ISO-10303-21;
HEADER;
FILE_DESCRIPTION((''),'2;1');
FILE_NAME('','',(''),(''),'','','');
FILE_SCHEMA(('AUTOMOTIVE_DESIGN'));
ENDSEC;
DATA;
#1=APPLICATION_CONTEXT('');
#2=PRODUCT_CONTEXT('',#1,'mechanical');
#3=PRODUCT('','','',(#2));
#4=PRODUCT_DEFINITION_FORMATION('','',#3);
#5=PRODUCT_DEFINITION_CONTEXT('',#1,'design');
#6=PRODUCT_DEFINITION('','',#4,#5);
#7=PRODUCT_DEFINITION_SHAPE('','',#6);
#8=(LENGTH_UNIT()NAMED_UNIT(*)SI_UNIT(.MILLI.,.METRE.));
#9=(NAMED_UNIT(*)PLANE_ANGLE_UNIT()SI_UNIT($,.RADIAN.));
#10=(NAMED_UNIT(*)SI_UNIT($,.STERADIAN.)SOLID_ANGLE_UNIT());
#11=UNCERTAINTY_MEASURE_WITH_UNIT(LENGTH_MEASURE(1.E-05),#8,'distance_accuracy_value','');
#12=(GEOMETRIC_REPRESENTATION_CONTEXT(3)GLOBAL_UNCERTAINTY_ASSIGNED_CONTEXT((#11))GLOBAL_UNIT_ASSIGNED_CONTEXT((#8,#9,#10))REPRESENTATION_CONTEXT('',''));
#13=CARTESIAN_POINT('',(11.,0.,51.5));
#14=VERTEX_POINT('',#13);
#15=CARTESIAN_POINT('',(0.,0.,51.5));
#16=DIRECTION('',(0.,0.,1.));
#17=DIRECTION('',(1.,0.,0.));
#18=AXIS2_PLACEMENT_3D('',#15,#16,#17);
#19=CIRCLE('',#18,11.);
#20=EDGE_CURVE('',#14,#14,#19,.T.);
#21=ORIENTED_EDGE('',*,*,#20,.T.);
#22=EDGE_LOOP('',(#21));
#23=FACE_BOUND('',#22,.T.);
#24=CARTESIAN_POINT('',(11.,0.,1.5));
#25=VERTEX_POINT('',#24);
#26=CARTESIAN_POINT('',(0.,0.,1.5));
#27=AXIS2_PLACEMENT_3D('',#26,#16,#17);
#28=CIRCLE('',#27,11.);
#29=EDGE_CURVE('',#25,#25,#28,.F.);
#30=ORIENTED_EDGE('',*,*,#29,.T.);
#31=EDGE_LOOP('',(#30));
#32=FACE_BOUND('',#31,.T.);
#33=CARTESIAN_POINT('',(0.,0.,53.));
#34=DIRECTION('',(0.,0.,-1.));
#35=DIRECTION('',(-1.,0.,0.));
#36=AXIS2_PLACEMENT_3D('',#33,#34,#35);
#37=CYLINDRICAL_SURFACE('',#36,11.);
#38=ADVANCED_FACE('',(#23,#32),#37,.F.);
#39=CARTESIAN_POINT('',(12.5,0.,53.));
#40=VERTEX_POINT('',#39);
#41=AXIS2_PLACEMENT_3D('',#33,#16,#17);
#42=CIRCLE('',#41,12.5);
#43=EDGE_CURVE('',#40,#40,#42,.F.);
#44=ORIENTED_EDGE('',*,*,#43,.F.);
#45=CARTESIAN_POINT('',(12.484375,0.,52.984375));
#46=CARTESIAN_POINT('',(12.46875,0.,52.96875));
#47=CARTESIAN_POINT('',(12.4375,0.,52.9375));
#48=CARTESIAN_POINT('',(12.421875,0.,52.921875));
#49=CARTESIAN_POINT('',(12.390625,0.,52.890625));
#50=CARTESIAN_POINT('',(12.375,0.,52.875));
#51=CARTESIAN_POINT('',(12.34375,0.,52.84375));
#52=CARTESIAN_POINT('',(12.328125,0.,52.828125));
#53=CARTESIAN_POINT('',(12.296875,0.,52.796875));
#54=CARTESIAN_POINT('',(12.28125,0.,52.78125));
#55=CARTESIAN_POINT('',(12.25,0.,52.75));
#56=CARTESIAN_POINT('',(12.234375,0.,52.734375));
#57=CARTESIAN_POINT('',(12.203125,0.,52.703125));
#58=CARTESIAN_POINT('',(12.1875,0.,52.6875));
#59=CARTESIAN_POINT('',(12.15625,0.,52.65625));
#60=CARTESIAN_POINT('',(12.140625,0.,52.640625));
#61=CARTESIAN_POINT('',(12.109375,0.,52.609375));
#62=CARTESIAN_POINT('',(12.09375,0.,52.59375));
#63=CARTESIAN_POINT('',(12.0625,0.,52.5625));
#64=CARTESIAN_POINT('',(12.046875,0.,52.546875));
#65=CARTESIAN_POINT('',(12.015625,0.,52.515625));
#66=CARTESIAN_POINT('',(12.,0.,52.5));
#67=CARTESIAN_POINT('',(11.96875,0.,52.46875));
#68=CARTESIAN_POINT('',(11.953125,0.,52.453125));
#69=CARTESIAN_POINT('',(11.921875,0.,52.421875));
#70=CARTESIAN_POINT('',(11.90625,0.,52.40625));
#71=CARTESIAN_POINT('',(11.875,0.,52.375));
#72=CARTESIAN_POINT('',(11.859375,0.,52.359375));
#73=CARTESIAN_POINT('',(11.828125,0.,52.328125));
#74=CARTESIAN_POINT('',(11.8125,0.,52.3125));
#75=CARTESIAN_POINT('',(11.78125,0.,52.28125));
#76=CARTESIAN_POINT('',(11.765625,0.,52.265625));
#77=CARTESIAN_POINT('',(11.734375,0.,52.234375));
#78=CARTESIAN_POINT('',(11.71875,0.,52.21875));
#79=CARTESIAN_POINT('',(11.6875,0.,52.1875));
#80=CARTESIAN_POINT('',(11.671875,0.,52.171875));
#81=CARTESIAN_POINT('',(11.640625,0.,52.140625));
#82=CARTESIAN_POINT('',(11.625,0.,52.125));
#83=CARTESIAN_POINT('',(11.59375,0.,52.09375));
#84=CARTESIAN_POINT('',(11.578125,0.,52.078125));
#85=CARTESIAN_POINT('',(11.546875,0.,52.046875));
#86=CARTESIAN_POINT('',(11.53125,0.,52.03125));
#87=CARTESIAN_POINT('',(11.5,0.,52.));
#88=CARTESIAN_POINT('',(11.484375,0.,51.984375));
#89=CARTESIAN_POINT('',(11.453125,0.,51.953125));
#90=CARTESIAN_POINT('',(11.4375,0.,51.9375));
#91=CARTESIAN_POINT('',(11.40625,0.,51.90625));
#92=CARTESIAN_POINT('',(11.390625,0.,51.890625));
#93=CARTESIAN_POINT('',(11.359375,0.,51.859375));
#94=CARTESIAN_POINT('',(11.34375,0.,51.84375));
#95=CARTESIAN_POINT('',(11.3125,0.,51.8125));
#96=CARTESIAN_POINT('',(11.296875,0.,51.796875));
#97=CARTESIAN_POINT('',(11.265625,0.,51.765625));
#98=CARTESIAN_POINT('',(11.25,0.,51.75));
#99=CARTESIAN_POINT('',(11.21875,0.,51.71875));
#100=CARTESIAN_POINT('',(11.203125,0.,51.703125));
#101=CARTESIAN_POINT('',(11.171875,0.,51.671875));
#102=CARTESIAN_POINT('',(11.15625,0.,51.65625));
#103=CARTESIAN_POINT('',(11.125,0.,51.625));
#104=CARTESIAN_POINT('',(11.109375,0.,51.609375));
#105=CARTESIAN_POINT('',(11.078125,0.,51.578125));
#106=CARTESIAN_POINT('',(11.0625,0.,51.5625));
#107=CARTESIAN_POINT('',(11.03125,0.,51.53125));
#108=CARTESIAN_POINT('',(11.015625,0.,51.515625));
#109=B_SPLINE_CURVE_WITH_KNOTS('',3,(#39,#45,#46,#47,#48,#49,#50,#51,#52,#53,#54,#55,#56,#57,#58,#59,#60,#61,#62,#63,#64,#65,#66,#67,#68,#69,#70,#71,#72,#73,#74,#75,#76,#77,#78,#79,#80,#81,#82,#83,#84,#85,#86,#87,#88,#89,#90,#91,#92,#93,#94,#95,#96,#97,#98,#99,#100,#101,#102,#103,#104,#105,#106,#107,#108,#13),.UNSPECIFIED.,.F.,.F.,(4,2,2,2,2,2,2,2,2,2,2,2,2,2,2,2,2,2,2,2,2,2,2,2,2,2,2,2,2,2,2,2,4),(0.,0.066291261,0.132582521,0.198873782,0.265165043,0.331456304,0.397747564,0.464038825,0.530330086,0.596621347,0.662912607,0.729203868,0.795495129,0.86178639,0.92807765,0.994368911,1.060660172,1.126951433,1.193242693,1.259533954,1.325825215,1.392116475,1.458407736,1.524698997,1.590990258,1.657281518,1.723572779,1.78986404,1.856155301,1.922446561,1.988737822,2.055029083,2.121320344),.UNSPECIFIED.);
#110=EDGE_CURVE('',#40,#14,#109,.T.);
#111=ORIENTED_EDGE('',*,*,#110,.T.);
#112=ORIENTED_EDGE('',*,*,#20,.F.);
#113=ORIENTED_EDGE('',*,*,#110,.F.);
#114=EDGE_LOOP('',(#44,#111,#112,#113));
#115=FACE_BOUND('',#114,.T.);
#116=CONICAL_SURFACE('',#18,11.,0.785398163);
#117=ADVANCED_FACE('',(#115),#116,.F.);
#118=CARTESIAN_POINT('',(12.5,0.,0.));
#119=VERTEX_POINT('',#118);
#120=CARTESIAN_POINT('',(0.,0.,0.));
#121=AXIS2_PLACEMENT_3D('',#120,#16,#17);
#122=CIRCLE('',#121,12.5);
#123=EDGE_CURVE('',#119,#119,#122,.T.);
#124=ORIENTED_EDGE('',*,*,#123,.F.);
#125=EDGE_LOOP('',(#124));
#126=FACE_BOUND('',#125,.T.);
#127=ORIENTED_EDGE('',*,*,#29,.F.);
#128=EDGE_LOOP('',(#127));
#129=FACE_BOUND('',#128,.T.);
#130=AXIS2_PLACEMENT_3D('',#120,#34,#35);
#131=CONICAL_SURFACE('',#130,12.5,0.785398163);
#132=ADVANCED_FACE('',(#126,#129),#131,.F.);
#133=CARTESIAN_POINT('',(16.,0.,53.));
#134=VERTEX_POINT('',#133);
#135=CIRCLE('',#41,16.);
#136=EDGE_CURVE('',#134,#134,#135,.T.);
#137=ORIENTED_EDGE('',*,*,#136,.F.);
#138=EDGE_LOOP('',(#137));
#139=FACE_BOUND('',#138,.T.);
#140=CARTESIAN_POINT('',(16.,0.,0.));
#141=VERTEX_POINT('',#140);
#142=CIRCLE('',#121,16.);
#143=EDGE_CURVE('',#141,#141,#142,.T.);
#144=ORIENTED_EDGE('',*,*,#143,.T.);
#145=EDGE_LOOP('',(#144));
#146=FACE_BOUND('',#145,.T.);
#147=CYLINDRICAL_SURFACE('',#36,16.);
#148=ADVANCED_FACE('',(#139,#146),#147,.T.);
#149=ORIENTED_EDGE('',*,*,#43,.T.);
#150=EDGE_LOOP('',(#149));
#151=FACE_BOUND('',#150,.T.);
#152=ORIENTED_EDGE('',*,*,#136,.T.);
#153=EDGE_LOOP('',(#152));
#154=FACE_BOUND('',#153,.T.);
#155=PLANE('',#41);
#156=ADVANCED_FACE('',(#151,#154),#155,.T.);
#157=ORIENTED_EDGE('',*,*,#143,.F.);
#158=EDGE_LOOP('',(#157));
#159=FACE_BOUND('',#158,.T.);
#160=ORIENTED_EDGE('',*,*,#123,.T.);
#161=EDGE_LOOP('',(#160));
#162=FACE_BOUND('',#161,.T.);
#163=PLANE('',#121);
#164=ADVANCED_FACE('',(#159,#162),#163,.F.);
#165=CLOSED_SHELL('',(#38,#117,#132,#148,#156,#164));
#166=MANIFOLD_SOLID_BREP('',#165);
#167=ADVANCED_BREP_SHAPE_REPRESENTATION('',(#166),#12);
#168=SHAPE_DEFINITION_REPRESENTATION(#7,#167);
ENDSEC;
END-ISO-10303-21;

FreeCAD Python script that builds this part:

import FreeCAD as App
import Part
import Sketcher
from FreeCAD import Vector


def edges_at(feature, points):
    """Names of the edges that pass closest to the given points."""
    edges = feature.Shape.Edges
    near = lambda p: min(range(len(edges)), key=lambda i: edges[i].distToShape(Part.Vertex(*p))[0])
    return sorted({f"Edge{near(p) + 1}" for p in points})

doc = App.newDocument("Part")
body = doc.addObject("PartDesign::Body", "Body")

# Sketch on XY plane
sketch1 = doc.addObject("Sketcher::SketchObject", "Sketch")
body.addObject(sketch1)
sketch1.AttachmentSupport = (doc.XY_Plane, [""])
sketch1.MapMode = "FlatFace"
sketch1.addGeometry(Part.Circle(Vector(0, 0, 0), Vector(0, 0, 1), 16), False)
sketch1.addGeometry(Part.Circle(Vector(0, 0, 0), Vector(0, 0, 1), 11), False)
sketch1.addConstraint(Sketcher.Constraint("Coincident", 0, 3, -1, 1))
sketch1.addConstraint(Sketcher.Constraint("Coincident", 1, 3, -1, 1))
sketch1.addConstraint(Sketcher.Constraint("Diameter", 0, 32.0))
sketch1.addConstraint(Sketcher.Constraint("Diameter", 1, 22.0))
pad1 = doc.addObject("PartDesign::Pad", "Pad")
body.addObject(pad1)
pad1.Profile = sketch1
pad1.Length = 53
doc.recompute()

chamfer = doc.addObject("PartDesign::Chamfer", "Chamfer")
body.addObject(chamfer)
chamfer.Base = (pad1, edges_at(pad1, [(-11, 0, 0), (-11, 0, 53)]))
chamfer.Size = 1.5

doc.recompute()
